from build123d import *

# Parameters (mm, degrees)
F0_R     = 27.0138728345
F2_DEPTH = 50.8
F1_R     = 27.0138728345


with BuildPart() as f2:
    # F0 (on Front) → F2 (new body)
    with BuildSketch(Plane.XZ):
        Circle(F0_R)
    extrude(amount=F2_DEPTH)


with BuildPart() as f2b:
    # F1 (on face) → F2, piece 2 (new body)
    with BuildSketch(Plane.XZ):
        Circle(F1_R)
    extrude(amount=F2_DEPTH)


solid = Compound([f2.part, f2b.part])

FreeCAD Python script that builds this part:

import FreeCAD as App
import Part
import Sketcher

V = App.Vector
Q = App.Units.Quantity

doc = App.newDocument("Part")
params = doc.addObject("Spreadsheet::Sheet", "Params")
for row, (alias, value) in enumerate([
    ("pad1_length", "2 in"),
    ("pad2_length", "2 in"),
], start=1):
    params.set(f"A{row}", alias)
    params.set(f"B{row}", "=" + value)
    params.setAlias(f"B{row}", alias)

body = doc.addObject("PartDesign::Body", "Body")

# Sketch on XZ plane
sketch1 = doc.addObject("Sketcher::SketchObject", "Sketch")
body.addObject(sketch1)
sketch1.AttachmentSupport = (doc.XZ_Plane, [""])
sketch1.MapMode = "FlatFace"
sketch1.addGeometry(Part.Circle(V(0, 0, 0), V(0, 0, 1), 27.013873), False)
sketch1.addConstraint(Sketcher.Constraint("Coincident", 0, 3, -1, 1))
sketch1.addConstraint(Sketcher.Constraint("Diameter", 0, Q("54.027746 mm")))
pad1 = doc.addObject("PartDesign::Pad", "Pad")
body.addObject(pad1)
pad1.Profile = sketch1
pad1.setExpression("Length", "Params.pad1_length")
body2 = doc.addObject("PartDesign::Body", "Body001")

# Sketch on XZ plane
sketch2 = doc.addObject("Sketcher::SketchObject", "Sketch001")
body2.addObject(sketch2)
sketch2.AttachmentSupport = (doc.getObject("XZ_Plane001"), [""])
sketch2.MapMode = "FlatFace"
sketch2.addGeometry(Part.Circle(V(0, 0, 0), V(0, 0, 1), 27.013873), False)
sketch2.addConstraint(Sketcher.Constraint("Coincident", 0, 3, -1, 1))
sketch2.addConstraint(Sketcher.Constraint("Diameter", 0, Q("54.027746 mm")))
pad2 = doc.addObject("PartDesign::Pad", "Pad001")
body2.addObject(pad2)
pad2.Profile = sketch2
pad2.setExpression("Length", "Params.pad2_length")

doc.recompute()
